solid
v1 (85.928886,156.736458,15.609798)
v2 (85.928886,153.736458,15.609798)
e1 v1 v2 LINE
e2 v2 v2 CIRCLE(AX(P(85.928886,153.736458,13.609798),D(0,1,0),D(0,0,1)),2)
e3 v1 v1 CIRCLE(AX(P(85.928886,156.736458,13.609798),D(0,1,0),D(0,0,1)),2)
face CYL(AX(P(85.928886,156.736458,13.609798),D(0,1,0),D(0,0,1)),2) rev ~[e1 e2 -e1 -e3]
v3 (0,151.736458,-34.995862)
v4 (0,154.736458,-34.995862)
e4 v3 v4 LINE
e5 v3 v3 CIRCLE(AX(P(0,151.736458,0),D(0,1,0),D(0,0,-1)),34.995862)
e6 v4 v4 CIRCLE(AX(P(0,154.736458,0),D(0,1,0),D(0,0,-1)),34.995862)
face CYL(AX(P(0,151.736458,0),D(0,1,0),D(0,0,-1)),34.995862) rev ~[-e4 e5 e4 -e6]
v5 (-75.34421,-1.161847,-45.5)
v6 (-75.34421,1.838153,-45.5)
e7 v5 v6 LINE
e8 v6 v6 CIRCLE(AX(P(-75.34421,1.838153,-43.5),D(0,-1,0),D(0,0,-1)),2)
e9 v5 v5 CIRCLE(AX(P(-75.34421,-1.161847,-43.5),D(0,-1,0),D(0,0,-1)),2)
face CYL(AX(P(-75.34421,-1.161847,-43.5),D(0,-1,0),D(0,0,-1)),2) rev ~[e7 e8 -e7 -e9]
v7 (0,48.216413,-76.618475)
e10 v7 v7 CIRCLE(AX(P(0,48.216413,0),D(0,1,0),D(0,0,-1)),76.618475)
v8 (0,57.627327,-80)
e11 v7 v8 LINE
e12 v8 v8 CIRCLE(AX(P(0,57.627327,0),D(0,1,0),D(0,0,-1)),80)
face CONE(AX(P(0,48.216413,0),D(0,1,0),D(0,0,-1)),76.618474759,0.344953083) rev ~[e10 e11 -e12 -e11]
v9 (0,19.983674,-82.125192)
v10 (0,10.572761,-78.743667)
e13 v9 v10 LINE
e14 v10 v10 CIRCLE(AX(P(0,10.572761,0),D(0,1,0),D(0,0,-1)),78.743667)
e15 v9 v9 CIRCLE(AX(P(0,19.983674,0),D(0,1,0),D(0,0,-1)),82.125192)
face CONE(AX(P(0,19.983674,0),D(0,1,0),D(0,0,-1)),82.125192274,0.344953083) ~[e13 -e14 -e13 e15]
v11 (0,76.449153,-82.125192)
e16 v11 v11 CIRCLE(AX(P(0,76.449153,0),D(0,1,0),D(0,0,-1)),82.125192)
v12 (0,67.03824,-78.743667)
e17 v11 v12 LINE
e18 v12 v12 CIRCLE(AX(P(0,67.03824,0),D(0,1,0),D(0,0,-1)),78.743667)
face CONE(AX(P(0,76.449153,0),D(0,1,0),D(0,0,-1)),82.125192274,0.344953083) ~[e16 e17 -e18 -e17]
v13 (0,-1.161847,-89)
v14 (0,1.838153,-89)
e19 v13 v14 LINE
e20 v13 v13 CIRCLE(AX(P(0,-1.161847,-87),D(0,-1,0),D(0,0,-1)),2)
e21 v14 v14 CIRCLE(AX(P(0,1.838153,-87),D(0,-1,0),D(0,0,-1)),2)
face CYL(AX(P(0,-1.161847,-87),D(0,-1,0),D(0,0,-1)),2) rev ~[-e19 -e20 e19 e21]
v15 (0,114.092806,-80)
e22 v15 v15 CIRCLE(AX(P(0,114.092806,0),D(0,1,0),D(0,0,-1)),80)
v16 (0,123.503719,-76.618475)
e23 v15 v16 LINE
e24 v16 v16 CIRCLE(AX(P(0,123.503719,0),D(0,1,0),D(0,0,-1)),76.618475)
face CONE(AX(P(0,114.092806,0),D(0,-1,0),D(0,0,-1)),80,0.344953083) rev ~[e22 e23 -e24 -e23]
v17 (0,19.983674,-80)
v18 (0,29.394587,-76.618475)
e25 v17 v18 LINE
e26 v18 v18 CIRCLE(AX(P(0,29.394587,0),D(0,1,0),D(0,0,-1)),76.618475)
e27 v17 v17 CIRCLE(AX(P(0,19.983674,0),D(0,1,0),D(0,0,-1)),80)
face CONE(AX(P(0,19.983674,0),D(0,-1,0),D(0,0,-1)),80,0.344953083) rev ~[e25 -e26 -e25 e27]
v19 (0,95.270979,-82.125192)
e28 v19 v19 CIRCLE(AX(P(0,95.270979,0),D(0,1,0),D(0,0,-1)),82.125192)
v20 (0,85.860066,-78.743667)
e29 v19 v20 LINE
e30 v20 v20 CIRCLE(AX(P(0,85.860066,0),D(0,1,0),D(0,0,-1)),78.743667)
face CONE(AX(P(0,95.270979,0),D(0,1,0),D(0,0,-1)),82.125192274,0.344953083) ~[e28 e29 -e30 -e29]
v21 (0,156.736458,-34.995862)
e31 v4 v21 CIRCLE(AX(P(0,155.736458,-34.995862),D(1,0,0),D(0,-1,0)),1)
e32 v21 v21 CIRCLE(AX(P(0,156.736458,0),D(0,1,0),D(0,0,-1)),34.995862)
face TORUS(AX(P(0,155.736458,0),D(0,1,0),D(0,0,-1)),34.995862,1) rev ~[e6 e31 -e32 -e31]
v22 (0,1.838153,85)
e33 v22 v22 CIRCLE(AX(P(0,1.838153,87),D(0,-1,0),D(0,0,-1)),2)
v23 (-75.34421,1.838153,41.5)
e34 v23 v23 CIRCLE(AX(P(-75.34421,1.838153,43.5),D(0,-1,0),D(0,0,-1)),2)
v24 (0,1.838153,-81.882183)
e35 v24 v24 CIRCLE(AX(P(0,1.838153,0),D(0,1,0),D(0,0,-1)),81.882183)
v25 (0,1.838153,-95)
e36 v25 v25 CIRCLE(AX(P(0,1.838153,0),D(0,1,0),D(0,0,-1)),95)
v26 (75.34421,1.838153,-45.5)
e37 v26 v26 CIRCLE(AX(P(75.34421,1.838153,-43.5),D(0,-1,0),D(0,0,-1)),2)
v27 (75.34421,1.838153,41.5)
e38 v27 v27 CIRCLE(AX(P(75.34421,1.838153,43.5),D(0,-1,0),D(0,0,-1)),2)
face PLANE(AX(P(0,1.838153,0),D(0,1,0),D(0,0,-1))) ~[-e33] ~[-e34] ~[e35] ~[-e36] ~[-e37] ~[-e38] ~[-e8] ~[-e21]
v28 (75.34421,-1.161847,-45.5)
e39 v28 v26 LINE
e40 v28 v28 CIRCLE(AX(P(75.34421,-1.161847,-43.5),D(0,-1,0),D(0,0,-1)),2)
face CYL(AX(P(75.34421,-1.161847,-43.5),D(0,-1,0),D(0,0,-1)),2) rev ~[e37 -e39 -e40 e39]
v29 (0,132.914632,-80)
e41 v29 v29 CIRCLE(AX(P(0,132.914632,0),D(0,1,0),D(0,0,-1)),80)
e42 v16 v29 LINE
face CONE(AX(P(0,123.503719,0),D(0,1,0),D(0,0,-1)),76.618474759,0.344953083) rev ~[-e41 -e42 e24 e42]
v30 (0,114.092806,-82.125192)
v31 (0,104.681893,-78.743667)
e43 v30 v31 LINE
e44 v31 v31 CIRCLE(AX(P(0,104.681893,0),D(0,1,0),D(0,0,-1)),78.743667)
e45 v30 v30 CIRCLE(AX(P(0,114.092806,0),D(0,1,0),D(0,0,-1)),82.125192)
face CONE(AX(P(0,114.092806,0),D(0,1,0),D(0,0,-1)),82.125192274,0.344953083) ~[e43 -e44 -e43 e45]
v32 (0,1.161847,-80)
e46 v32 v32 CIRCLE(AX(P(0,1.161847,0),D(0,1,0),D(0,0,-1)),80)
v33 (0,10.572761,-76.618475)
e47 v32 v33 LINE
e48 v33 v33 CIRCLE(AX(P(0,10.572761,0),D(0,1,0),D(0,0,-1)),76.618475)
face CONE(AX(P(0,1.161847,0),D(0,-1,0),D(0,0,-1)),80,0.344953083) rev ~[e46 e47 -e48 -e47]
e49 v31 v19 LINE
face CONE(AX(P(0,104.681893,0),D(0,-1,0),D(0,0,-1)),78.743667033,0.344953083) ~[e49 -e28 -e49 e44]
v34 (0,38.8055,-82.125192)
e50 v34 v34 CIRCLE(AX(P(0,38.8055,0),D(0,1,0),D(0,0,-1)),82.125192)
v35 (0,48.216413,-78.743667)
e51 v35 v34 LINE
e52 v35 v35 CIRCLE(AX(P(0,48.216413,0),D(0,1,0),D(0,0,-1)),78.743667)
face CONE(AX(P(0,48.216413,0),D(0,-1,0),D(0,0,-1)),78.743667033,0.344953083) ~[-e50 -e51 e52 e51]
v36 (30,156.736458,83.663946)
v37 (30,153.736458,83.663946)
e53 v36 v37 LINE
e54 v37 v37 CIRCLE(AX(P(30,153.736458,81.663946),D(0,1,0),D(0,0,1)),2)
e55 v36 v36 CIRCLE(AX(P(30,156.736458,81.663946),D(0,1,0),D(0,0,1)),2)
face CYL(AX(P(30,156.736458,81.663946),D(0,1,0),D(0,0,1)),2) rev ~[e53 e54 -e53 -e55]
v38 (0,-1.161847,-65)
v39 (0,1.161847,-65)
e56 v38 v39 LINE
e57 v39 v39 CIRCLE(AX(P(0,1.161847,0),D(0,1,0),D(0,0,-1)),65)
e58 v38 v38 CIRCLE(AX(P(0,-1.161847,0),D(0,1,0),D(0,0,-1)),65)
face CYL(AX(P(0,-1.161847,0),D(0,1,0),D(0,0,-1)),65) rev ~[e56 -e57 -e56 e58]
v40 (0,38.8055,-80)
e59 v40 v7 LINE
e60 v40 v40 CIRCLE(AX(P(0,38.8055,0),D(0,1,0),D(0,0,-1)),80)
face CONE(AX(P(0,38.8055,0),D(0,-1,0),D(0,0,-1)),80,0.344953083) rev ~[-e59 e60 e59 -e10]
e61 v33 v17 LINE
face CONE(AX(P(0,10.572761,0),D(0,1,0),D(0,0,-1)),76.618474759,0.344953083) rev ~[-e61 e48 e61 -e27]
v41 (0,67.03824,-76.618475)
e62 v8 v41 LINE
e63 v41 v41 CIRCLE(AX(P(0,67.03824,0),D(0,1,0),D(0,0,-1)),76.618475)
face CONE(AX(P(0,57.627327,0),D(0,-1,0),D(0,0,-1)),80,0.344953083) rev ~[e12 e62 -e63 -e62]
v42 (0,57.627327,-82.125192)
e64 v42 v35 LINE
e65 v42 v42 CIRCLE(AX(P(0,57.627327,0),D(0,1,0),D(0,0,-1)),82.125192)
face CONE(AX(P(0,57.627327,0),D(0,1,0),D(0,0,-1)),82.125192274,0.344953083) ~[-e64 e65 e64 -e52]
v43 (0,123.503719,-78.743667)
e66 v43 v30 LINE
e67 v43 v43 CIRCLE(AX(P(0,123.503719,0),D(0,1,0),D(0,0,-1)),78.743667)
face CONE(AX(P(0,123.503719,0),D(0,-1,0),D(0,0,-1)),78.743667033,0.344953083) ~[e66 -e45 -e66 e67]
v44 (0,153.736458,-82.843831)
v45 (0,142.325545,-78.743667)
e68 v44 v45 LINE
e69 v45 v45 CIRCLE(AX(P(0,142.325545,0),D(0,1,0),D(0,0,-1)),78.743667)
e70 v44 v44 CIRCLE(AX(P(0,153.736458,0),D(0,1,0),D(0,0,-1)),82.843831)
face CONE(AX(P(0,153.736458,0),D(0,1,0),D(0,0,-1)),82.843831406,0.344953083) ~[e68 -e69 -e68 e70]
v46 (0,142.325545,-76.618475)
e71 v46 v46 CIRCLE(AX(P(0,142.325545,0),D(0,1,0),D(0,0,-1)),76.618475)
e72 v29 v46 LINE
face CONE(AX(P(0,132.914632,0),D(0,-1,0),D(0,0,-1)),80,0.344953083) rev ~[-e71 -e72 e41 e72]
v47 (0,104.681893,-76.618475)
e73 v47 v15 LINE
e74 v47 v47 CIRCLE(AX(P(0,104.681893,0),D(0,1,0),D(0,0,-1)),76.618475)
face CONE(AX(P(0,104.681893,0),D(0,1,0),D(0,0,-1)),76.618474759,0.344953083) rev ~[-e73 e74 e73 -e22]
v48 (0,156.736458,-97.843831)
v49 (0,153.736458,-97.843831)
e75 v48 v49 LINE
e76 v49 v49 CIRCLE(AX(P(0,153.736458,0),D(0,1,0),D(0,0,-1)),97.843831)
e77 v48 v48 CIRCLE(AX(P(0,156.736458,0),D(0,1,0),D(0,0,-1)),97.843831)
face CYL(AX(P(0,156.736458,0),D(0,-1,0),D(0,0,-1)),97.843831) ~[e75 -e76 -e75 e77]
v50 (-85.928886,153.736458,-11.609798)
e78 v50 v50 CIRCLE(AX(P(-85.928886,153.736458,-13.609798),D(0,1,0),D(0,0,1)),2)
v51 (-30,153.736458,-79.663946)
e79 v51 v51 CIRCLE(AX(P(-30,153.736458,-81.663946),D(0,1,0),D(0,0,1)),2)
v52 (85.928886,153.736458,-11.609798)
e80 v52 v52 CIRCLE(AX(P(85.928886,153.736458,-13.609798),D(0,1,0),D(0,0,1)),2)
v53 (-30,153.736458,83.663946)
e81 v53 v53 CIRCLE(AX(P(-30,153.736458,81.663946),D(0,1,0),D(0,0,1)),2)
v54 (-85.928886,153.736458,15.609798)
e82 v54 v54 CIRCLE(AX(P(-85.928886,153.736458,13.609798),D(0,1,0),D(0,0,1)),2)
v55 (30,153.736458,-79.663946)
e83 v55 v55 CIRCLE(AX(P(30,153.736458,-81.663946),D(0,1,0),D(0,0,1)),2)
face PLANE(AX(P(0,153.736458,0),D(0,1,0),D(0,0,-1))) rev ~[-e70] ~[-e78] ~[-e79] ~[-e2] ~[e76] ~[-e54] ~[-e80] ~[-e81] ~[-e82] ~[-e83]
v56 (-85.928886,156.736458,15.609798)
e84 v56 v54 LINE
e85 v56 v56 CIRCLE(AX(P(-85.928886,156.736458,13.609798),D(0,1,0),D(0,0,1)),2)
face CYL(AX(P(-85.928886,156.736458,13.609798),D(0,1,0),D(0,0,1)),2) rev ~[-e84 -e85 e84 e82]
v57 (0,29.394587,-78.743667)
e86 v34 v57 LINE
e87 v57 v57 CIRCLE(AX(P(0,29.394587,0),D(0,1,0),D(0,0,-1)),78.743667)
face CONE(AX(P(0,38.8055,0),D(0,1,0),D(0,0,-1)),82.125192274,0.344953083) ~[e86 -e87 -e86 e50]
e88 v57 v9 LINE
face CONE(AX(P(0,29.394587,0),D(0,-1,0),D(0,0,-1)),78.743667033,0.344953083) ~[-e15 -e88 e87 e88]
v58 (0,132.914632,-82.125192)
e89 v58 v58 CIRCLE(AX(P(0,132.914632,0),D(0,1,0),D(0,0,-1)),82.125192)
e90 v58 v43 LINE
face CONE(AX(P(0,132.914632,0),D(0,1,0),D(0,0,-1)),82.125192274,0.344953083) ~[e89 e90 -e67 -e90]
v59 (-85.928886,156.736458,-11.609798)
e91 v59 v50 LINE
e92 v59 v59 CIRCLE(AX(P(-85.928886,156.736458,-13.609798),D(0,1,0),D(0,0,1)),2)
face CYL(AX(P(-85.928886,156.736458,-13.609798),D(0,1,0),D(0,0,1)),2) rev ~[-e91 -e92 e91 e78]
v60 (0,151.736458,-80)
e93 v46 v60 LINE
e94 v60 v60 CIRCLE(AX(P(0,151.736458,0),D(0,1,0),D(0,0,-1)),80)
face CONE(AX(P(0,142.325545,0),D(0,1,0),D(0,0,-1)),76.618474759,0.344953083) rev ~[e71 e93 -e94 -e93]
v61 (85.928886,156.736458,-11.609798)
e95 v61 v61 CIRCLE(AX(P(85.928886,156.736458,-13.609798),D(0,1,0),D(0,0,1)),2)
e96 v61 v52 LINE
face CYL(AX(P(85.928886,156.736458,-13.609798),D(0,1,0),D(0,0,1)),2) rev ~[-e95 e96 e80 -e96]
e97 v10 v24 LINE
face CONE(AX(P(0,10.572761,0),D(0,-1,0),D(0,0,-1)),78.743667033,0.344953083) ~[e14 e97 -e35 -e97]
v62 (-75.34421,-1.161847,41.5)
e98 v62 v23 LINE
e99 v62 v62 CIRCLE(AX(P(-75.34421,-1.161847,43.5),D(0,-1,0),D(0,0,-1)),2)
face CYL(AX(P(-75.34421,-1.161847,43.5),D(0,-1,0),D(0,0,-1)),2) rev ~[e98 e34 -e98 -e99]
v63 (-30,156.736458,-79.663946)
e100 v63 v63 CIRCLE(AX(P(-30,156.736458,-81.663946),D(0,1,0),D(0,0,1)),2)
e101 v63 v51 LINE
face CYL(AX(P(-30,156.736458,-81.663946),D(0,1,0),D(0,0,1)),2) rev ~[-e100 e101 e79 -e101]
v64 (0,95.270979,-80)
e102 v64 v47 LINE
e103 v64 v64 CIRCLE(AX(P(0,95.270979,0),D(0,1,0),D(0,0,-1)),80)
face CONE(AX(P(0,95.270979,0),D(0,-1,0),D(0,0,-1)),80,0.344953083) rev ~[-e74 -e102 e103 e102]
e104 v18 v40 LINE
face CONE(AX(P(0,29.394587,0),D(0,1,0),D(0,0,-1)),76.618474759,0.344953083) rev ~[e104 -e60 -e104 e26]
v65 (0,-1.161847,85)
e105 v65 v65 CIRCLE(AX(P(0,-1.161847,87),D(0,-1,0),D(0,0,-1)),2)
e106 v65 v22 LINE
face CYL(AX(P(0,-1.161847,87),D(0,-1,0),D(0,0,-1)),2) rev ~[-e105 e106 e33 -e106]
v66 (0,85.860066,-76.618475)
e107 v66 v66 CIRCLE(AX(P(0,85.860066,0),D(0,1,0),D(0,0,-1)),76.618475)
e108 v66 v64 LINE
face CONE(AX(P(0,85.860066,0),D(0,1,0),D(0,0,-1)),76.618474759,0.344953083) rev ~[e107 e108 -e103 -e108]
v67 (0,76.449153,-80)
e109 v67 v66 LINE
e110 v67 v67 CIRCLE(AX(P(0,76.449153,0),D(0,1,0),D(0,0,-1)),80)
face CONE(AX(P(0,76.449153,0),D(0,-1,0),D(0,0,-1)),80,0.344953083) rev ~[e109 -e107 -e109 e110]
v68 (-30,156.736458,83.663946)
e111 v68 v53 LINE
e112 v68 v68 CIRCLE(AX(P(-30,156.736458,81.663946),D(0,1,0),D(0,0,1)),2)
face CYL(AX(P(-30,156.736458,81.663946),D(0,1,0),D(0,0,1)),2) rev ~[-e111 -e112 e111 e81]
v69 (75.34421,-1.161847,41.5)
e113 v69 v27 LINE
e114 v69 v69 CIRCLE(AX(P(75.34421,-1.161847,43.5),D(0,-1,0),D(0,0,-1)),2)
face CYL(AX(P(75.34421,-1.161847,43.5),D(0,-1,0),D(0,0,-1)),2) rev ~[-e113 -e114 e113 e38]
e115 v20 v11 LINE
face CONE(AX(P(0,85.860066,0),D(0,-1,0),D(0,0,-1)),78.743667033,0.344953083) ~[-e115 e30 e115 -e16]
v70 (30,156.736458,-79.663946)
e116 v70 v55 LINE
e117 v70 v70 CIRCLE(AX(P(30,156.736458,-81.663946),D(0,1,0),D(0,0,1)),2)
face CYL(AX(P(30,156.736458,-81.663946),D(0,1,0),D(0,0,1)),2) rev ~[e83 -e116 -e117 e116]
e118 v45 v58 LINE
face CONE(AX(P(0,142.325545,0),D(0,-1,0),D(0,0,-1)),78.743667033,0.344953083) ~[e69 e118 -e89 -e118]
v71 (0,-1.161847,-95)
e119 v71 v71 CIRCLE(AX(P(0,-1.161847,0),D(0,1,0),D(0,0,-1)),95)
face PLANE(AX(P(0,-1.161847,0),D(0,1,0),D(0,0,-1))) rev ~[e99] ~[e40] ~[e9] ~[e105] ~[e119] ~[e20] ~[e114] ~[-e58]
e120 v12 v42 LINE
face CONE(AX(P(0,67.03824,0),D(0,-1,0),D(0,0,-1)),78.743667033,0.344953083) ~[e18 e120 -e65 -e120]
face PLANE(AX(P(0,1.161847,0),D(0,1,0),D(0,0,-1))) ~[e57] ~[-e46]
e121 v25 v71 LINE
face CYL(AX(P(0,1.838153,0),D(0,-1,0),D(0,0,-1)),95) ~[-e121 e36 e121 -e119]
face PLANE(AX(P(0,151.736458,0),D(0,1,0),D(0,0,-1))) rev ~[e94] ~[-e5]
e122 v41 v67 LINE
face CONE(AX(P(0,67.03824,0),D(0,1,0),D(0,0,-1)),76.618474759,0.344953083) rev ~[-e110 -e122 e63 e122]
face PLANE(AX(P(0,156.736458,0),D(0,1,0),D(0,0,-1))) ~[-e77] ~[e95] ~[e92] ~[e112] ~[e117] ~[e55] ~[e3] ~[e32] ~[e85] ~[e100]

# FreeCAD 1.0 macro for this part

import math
import FreeCAD as App
import Part
import Sketcher

V = App.Vector
Q = App.Units.Quantity

doc = App.newDocument("Part")
params = doc.addObject("Spreadsheet::Sheet", "Params")
for row, (alias, value) in enumerate([
    ("sketch1_radius", "1 mm"),
    ("sketch1_width", "15 mm"),
    ("sketch1_width2", "30 mm"),
    ("sketch1_height", "3 mm"),
    ("sketch1_length", "10 mm"),
    ("revolution_angle", "360 deg"),
    ("sketch2_diameter", "4 mm"),
    ("sketch3_diameter", "4 mm"),
    ("sketch4_diameter", "4 mm"),
    ("sketch5_diameter", "4 mm"),
    ("sketch6_diameter", "4 mm"),
    ("sketch7_diameter", "4 mm"),
    ("sketch8_diameter", "4 mm"),
    ("sketch9_diameter", "4 mm"),
    ("sketch10_diameter", "4 mm"),
    ("sketch11_diameter", "4 mm"),
    ("sketch12_diameter", "4 mm"),
    ("sketch13_diameter", "4 mm"),
    ("sketch14_diameter", "4 mm"),
    ("sketch15_diameter", "4 mm"),
], start=1):
    params.set(f"A{row}", alias)
    params.set(f"B{row}", "=" + value)
    params.setAlias(f"B{row}", alias)

body = doc.addObject("PartDesign::Body", "Body")

sketch1 = body.newObject("Sketcher::SketchObject", "Sketch")
sketch1.AttachmentSupport = (doc.getObject("XY_Plane"), [""])
sketch1.MapMode = "FlatFace"
sketch1.addGeometry([
    Part.LineSegment(V(76.618475, 10.572761, 0), V(80, 1.161847, 0)),
    Part.LineSegment(V(80, 1.161847, 0), V(65, 1.161847, 0)),
    Part.LineSegment(V(65, 1.161847, 0), V(65, -1.161847, 0)),
    Part.LineSegment(V(65, -1.161847, 0), V(95, -1.161847, 0)),
    Part.LineSegment(V(95, -1.161847, 0), V(95, 1.838153, 0)),
    Part.LineSegment(V(95, 1.838153, 0), V(81.882183, 1.838153, 0)),
    Part.LineSegment(V(81.882183, 1.838153, 0), V(78.743667, 10.572761, 0)),
    Part.LineSegment(V(78.743667, 10.572761, 0), V(82.125192, 19.983674, 0)),
    Part.LineSegment(V(82.125192, 19.983674, 0), V(78.743667, 29.394587, 0)),
    Part.LineSegment(V(78.743667, 29.394587, 0), V(82.125192, 38.8055, 0)),
    Part.LineSegment(V(82.125192, 38.8055, 0), V(78.743667, 48.216413, 0)),
    Part.LineSegment(V(78.743667, 48.216413, 0), V(82.125192, 57.627327, 0)),
    Part.LineSegment(V(82.125192, 57.627327, 0), V(78.743667, 67.03824, 0)),
    Part.LineSegment(V(78.743667, 67.03824, 0), V(82.125192, 76.449153, 0)),
    Part.LineSegment(V(82.125192, 76.449153, 0), V(78.743667, 85.860066, 0)),
    Part.LineSegment(V(78.743667, 85.860066, 0), V(82.125192, 95.270979, 0)),
    Part.LineSegment(V(82.125192, 95.270979, 0), V(78.743667, 104.681893, 0)),
    Part.LineSegment(V(78.743667, 104.681893, 0), V(82.125192, 114.092806, 0)),
    Part.LineSegment(V(82.125192, 114.092806, 0), V(78.743667, 123.503719, 0)),
    Part.LineSegment(V(78.743667, 123.503719, 0), V(82.125192, 132.914632, 0)),
    Part.LineSegment(V(82.125192, 132.914632, 0), V(78.743667, 142.325545, 0)),
    Part.LineSegment(V(78.743667, 142.325545, 0), V(82.843831, 153.736458, 0)),
    Part.LineSegment(V(82.843831, 153.736458, 0), V(97.843831, 153.736458, 0)),
    Part.LineSegment(V(97.843831, 153.736458, 0), V(97.843831, 156.736458, 0)),
    Part.LineSegment(V(97.843831, 156.736458, 0), V(34.995862, 156.736458, 0)),
    Part.ArcOfCircle(Part.Circle(V(34.995862, 155.736458, 0), V(0, 0, 1), 1), math.radians(-90), math.radians(90)),
    Part.LineSegment(V(34.995862, 154.736458, 0), V(34.995862, 151.736458, 0)),
    Part.LineSegment(V(34.995862, 151.736458, 0), V(80, 151.736458, 0)),
    Part.LineSegment(V(80, 151.736458, 0), V(76.618475, 142.325545, 0)),
    Part.LineSegment(V(76.618475, 142.325545, 0), V(80, 132.914632, 0)),
    Part.LineSegment(V(80, 132.914632, 0), V(76.618475, 123.503719, 0)),
    Part.LineSegment(V(76.618475, 123.503719, 0), V(80, 114.092806, 0)),
    Part.LineSegment(V(80, 114.092806, 0), V(76.618475, 104.681893, 0)),
    Part.LineSegment(V(76.618475, 104.681893, 0), V(80, 95.270979, 0)),
    Part.LineSegment(V(80, 95.270979, 0), V(76.618475, 85.860066, 0)),
    Part.LineSegment(V(76.618475, 85.860066, 0), V(80, 76.449153, 0)),
    Part.LineSegment(V(80, 76.449153, 0), V(76.618475, 67.03824, 0)),
    Part.LineSegment(V(76.618475, 67.03824, 0), V(80, 57.627327, 0)),
    Part.LineSegment(V(80, 57.627327, 0), V(76.618475, 48.216413, 0)),
    Part.LineSegment(V(76.618475, 48.216413, 0), V(80, 38.8055, 0)),
    Part.LineSegment(V(80, 38.8055, 0), V(76.618475, 29.394587, 0)),
    Part.LineSegment(V(76.618475, 29.394587, 0), V(80, 19.983674, 0)),
    Part.LineSegment(V(80, 19.983674, 0), V(76.618475, 10.572761, 0)),
], False)
sketch1.addConstraint([
    Sketcher.Constraint("Coincident", 0, 2, 1, 1),
    Sketcher.Constraint("Coincident", 1, 2, 2, 1),
    Sketcher.Constraint("Coincident", 2, 2, 3, 1),
    Sketcher.Constraint("Coincident", 3, 2, 4, 1),
    Sketcher.Constraint("Coincident", 4, 2, 5, 1),
    Sketcher.Constraint("Coincident", 5, 2, 6, 1),
    Sketcher.Constraint("Coincident", 6, 2, 7, 1),
    Sketcher.Constraint("Coincident", 7, 2, 8, 1),
    Sketcher.Constraint("Coincident", 8, 2, 9, 1),
    Sketcher.Constraint("Coincident", 9, 2, 10, 1),
    Sketcher.Constraint("Coincident", 10, 2, 11, 1),
    Sketcher.Constraint("Coincident", 11, 2, 12, 1),
    Sketcher.Constraint("Coincident", 12, 2, 13, 1),
    Sketcher.Constraint("Coincident", 13, 2, 14, 1),
    Sketcher.Constraint("Coincident", 14, 2, 15, 1),
    Sketcher.Constraint("Coincident", 15, 2, 16, 1),
    Sketcher.Constraint("Coincident", 16, 2, 17, 1),
    Sketcher.Constraint("Coincident", 17, 2, 18, 1),
    Sketcher.Constraint("Coincident", 18, 2, 19, 1),
    Sketcher.Constraint("Coincident", 19, 2, 20, 1),
    Sketcher.Constraint("Coincident", 20, 2, 21, 1),
    Sketcher.Constraint("Coincident", 21, 2, 22, 1),
    Sketcher.Constraint("Coincident", 22, 2, 23, 1),
    Sketcher.Constraint("Coincident", 23, 2, 24, 1),
    Sketcher.Constraint("Tangent", 24, 2, 25, 2),
    Sketcher.Constraint("Coincident", 25, 1, 26, 1),
    Sketcher.Constraint("Coincident", 26, 2, 27, 1),
    Sketcher.Constraint("Coincident", 27, 2, 28, 1),
    Sketcher.Constraint("Coincident", 28, 2, 29, 1),
    Sketcher.Constraint("Coincident", 29, 2, 30, 1),
    Sketcher.Constraint("Coincident", 30, 2, 31, 1),
    Sketcher.Constraint("Coincident", 31, 2, 32, 1),
    Sketcher.Constraint("Coincident", 32, 2, 33, 1),
    Sketcher.Constraint("Coincident", 33, 2, 34, 1),
    Sketcher.Constraint("Coincident", 34, 2, 35, 1),
    Sketcher.Constraint("Coincident", 35, 2, 36, 1),
    Sketcher.Constraint("Coincident", 36, 2, 37, 1),
    Sketcher.Constraint("Coincident", 37, 2, 38, 1),
    Sketcher.Constraint("Coincident", 38, 2, 39, 1),
    Sketcher.Constraint("Coincident", 39, 2, 40, 1),
    Sketcher.Constraint("Coincident", 40, 2, 41, 1),
    Sketcher.Constraint("Coincident", 41, 2, 42, 1),
    Sketcher.Constraint("Coincident", 42, 2, 0, 1),
    Sketcher.Constraint("Horizontal", 1),
    Sketcher.Constraint("Vertical", 2),
    Sketcher.Constraint("Horizontal", 3),
    Sketcher.Constraint("Vertical", 4),
    Sketcher.Constraint("Horizontal", 5),
    Sketcher.Constraint("Horizontal", 22),
    Sketcher.Constraint("Vertical", 23),
    Sketcher.Constraint("Horizontal", 24),
    Sketcher.Constraint("Vertical", 26),
    Sketcher.Constraint("Horizontal", 27),
    Sketcher.Constraint("Parallel", 0, 6),
    Sketcher.Constraint("Parallel", 6, 8),
    Sketcher.Constraint("Parallel", 7, 9),
    Sketcher.Constraint("Parallel", 8, 10),
    Sketcher.Constraint("Parallel", 9, 11),
    Sketcher.Constraint("Parallel", 10, 12),
    Sketcher.Constraint("Parallel", 11, 13),
    Sketcher.Constraint("Parallel", 12, 14),
    Sketcher.Constraint("Parallel", 13, 15),
    Sketcher.Constraint("Parallel", 14, 16),
    Sketcher.Constraint("Parallel", 15, 17),
    Sketcher.Constraint("Parallel", 16, 18),
    Sketcher.Constraint("Parallel", 17, 19),
    Sketcher.Constraint("Parallel", 18, 20),
    Sketcher.Constraint("Parallel", 19, 21),
    Sketcher.Constraint("Parallel", 21, 28),
    Sketcher.Constraint("Parallel", 20, 29),
    Sketcher.Constraint("Parallel", 28, 30),
    Sketcher.Constraint("Parallel", 29, 31),
    Sketcher.Constraint("Parallel", 30, 32),
    Sketcher.Constraint("Parallel", 31, 33),
    Sketcher.Constraint("Parallel", 32, 34),
    Sketcher.Constraint("Parallel", 33, 35),
    Sketcher.Constraint("Parallel", 34, 36),
    Sketcher.Constraint("Parallel", 35, 37),
    Sketcher.Constraint("Parallel", 36, 38),
    Sketcher.Constraint("Parallel", 37, 39),
    Sketcher.Constraint("Parallel", 38, 40),
    Sketcher.Constraint("Parallel", 39, 41),
    Sketcher.Constraint("Parallel", 40, 42),
    Sketcher.Constraint("Horizontal", 20, 2, 28, 2),
    Sketcher.Constraint("Horizontal", 19, 2, 29, 2),
    Sketcher.Constraint("Horizontal", 18, 2, 30, 2),
    Sketcher.Constraint("Horizontal", 17, 2, 31, 2),
    Sketcher.Constraint("Horizontal", 16, 2, 32, 2),
    Sketcher.Constraint("Horizontal", 15, 2, 33, 2),
    Sketcher.Constraint("Horizontal", 14, 2, 34, 2),
    Sketcher.Constraint("Horizontal", 13, 2, 35, 2),
    Sketcher.Constraint("Horizontal", 12, 2, 36, 2),
    Sketcher.Constraint("Horizontal", 11, 2, 37, 2),
    Sketcher.Constraint("Horizontal", 10, 2, 38, 2),
    Sketcher.Constraint("Horizontal", 9, 2, 39, 2),
    Sketcher.Constraint("Horizontal", 8, 2, 40, 2),
    Sketcher.Constraint("Horizontal", 7, 2, 41, 2),
    Sketcher.Constraint("Horizontal", 6, 2, 42, 2),
    Sketcher.Constraint("Vertical", 6, 2, 8, 2),
    Sketcher.Constraint("Vertical", 7, 2, 9, 2),
    Sketcher.Constraint("Vertical", 8, 2, 10, 2),
    Sketcher.Constraint("Vertical", 9, 2, 11, 2),
    Sketcher.Constraint("Vertical", 10, 2, 12, 2),
    Sketcher.Constraint("Vertical", 11, 2, 13, 2),
    Sketcher.Constraint("Vertical", 12, 2, 14, 2),
    Sketcher.Constraint("Vertical", 13, 2, 15, 2),
    Sketcher.Constraint("Vertical", 14, 2, 16, 2),
    Sketcher.Constraint("Vertical", 15, 2, 17, 2),
    Sketcher.Constraint("Vertical", 16, 2, 18, 2),
    Sketcher.Constraint("Vertical", 17, 2, 19, 2),
    Sketcher.Constraint("Vertical", 18, 2, 20, 2),
    Sketcher.Constraint("Vertical", 24, 2, 25, 1),
    Sketcher.Constraint("Vertical", 0, 2, 27, 2),
    Sketcher.Constraint("Vertical", 27, 2, 29, 2),
    Sketcher.Constraint("Equal", 1, 22),
    Sketcher.Constraint("Equal", 4, 23),
    Sketcher.Constraint("Equal", 23, 26),
    Sketcher.Constraint("Equal", 0, 7),
    Sketcher.Constraint("Radius", 25, Q("1 mm")),
    Sketcher.Constraint("DistanceX", 1, 2, 1, 1, Q("15 mm")),
    Sketcher.Constraint("DistanceX", 3, 1, 3, 2, Q("30 mm")),
    Sketcher.Constraint("DistanceY", 4, 1, 4, 2, Q("3 mm")),
    Sketcher.Constraint("Distance", 0, Q("10 mm")),
    Sketcher.Constraint("DistanceX", -1, 1, 0, 2, Q("80 mm")),
    Sketcher.Constraint("DistanceX", 24, 2, 24, 1, Q("62.847969 mm")),
    Sketcher.Constraint("DistanceY", -1, 1, 9, 2, Q("38.8055 mm")),
    Sketcher.Constraint("Distance", 6, Q("9.281361 mm")),
    Sketcher.Constraint("DistanceX", 5, 2, 5, 1, Q("13.117817 mm")),
    Sketcher.Constraint("DistanceX", 27, 1, 27, 2, Q("45.004138 mm")),
])
sketch1.setExpression("Constraints[118]", "Params.sketch1_radius")
sketch1.setExpression("Constraints[119]", "Params.sketch1_width")
sketch1.setExpression("Constraints[120]", "Params.sketch1_width2")
sketch1.setExpression("Constraints[121]", "Params.sketch1_height")
sketch1.setExpression("Constraints[122]", "Params.sketch1_length")
revolution = body.newObject("PartDesign::Revolution", "Revolution")
revolution.Profile = sketch1
revolution.ReferenceAxis = (sketch1, ["V_Axis"])
revolution.setExpression("Angle", "Params.revolution_angle")

sketch2 = body.newObject("Sketcher::SketchObject", "Sketch001")
sketch2.AttachmentSupport = (doc.getObject("XZ_Plane"), [""])
sketch2.MapMode = "FlatFace"
sketch2.AttachmentOffset = App.Placement(V(0, 0, -156.736458), App.Rotation())
sketch2.addGeometry(Part.Circle(V(-85.928886, -13.609798, 0), V(0, 0, 1), 2), False)
sketch2.addConstraint([
    Sketcher.Constraint("Diameter", 0, Q("4 mm")),
    Sketcher.Constraint("DistanceY", 0, 3, -1, 1, Q("13.609798 mm")),
    Sketcher.Constraint("DistanceX", 0, 3, -1, 1, Q("85.928886 mm")),
])
sketch2.setExpression("Constraints[0]", "Params.sketch2_diameter")
pocket1 = body.newObject("PartDesign::Pocket", "Pocket")
pocket1.Profile = sketch2
pocket1.Type = "UpToFirst"
pocket1.Reversed = True

sketch3 = body.newObject("Sketcher::SketchObject", "Sketch002")
sketch3.AttachmentSupport = (doc.getObject("XZ_Plane"), [""])
sketch3.MapMode = "FlatFace"
sketch3.AttachmentOffset = App.Placement(V(0, 0, -156.736458), App.Rotation())
sketch3.addGeometry(Part.Circle(V(-85.928886, 13.609798, 0), V(0, 0, 1), 2), False)
sketch3.addConstraint([
    Sketcher.Constraint("Diameter", 0, Q("4 mm")),
    Sketcher.Constraint("DistanceY", -1, 1, 0, 3, Q("13.609798 mm")),
    Sketcher.Constraint("DistanceX", 0, 3, -1, 1, Q("85.928886 mm")),
])
sketch3.setExpression("Constraints[0]", "Params.sketch3_diameter")
pocket2 = body.newObject("PartDesign::Pocket", "Pocket001")
pocket2.Profile = sketch3
pocket2.Type = "UpToFirst"
pocket2.Reversed = True

sketch4 = body.newObject("Sketcher::SketchObject", "Sketch003")
sketch4.AttachmentSupport = (doc.getObject("XZ_Plane"), [""])
sketch4.MapMode = "FlatFace"
sketch4.AttachmentOffset = App.Placement(V(0, 0, -156.736458), App.Rotation())
sketch4.addGeometry(Part.Circle(V(85.928886, -13.609798, 0), V(0, 0, 1), 2), False)
sketch4.addConstraint([
    Sketcher.Constraint("Diameter", 0, Q("4 mm")),
    Sketcher.Constraint("DistanceY", 0, 3, -1, 1, Q("13.609798 mm")),
    Sketcher.Constraint("DistanceX", -1, 1, 0, 3, Q("85.928886 mm")),
])
sketch4.setExpression("Constraints[0]", "Params.sketch4_diameter")
pocket3 = body.newObject("PartDesign::Pocket", "Pocket002")
pocket3.Profile = sketch4
pocket3.Type = "UpToFirst"
pocket3.Reversed = True

sketch5 = body.newObject("Sketcher::SketchObject", "Sketch004")
sketch5.AttachmentSupport = (doc.getObject("XZ_Plane"), [""])
sketch5.MapMode = "FlatFace"
sketch5.AttachmentOffset = App.Placement(V(0, 0, -156.736458), App.Rotation())
sketch5.addGeometry(Part.Circle(V(85.928886, 13.609798, 0), V(0, 0, 1), 2), False)
sketch5.addConstraint([
    Sketcher.Constraint("Diameter", 0, Q("4 mm")),
    Sketcher.Constraint("DistanceY", -1, 1, 0, 3, Q("13.609798 mm")),
    Sketcher.Constraint("DistanceX", -1, 1, 0, 3, Q("85.928886 mm")),
])
sketch5.setExpression("Constraints[0]", "Params.sketch5_diameter")
pocket4 = body.newObject("PartDesign::Pocket", "Pocket003")
pocket4.Profile = sketch5
pocket4.Type = "UpToFirst"
pocket4.Reversed = True

sketch6 = body.newObject("Sketcher::SketchObject", "Sketch005")
sketch6.AttachmentSupport = (doc.getObject("XZ_Plane"), [""])
sketch6.MapMode = "FlatFace"
sketch6.AttachmentOffset = App.Placement(V(0, 0, -156.736458), App.Rotation())
sketch6.addGeometry(Part.Circle(V(-30, -81.663946, 0), V(0, 0, 1), 2), False)
sketch6.addConstraint([
    Sketcher.Constraint("Diameter", 0, Q("4 mm")),
    Sketcher.Constraint("DistanceX", 0, 3, -1, 1, Q("30 mm")),
    Sketcher.Constraint("DistanceY", 0, 3, -1, 1, Q("81.663946 mm")),
])
sketch6.setExpression("Constraints[0]", "Params.sketch6_diameter")
pocket5 = body.newObject("PartDesign::Pocket", "Pocket004")
pocket5.Profile = sketch6
pocket5.Type = "UpToFirst"
pocket5.Reversed = True

sketch7 = body.newObject("Sketcher::SketchObject", "Sketch006")
sketch7.AttachmentSupport = (doc.getObject("XZ_Plane"), [""])
sketch7.MapMode = "FlatFace"
sketch7.AttachmentOffset = App.Placement(V(0, 0, -156.736458), App.Rotation())
sketch7.addGeometry(Part.Circle(V(30, -81.663946, 0), V(0, 0, 1), 2), False)
sketch7.addConstraint([
    Sketcher.Constraint("Diameter", 0, Q("4 mm")),
    Sketcher.Constraint("DistanceX", -1, 1, 0, 3, Q("30 mm")),
    Sketcher.Constraint("DistanceY", 0, 3, -1, 1, Q("81.663946 mm")),
])
sketch7.setExpression("Constraints[0]", "Params.sketch7_diameter")
pocket6 = body.newObject("PartDesign::Pocket", "Pocket005")
pocket6.Profile = sketch7
pocket6.Type = "UpToFirst"
pocket6.Reversed = True

sketch8 = body.newObject("Sketcher::SketchObject", "Sketch007")
sketch8.AttachmentSupport = (doc.getObject("XZ_Plane"), [""])
sketch8.MapMode = "FlatFace"
sketch8.AttachmentOffset = App.Placement(V(0, 0, -156.736458), App.Rotation())
sketch8.addGeometry(Part.Circle(V(30, 81.663946, 0), V(0, 0, 1), 2), False)
sketch8.addConstraint([
    Sketcher.Constraint("Diameter", 0, Q("4 mm")),
    Sketcher.Constraint("DistanceX", -1, 1, 0, 3, Q("30 mm")),
    Sketcher.Constraint("DistanceY", -1, 1, 0, 3, Q("81.663946 mm")),
])
sketch8.setExpression("Constraints[0]", "Params.sketch8_diameter")
pocket7 = body.newObject("PartDesign::Pocket", "Pocket006")
pocket7.Profile = sketch8
pocket7.Type = "UpToFirst"
pocket7.Reversed = True

sketch9 = body.newObject("Sketcher::SketchObject", "Sketch008")
sketch9.AttachmentSupport = (doc.getObject("XZ_Plane"), [""])
sketch9.MapMode = "FlatFace"
sketch9.AttachmentOffset = App.Placement(V(0, 0, -156.736458), App.Rotation())
sketch9.addGeometry(Part.Circle(V(-30, 81.663946, 0), V(0, 0, 1), 2), False)
sketch9.addConstraint([
    Sketcher.Constraint("Diameter", 0, Q("4 mm")),
    Sketcher.Constraint("DistanceX", 0, 3, -1, 1, Q("30 mm")),
    Sketcher.Constraint("DistanceY", -1, 1, 0, 3, Q("81.663946 mm")),
])
sketch9.setExpression("Constraints[0]", "Params.sketch9_diameter")
pocket8 = body.newObject("PartDesign::Pocket", "Pocket007")
pocket8.Profile = sketch9
pocket8.Type = "UpToFirst"
pocket8.Reversed = True

sketch10 = body.newObject("Sketcher::SketchObject", "Sketch009")
sketch10.AttachmentSupport = (doc.getObject("XZ_Plane"), [""])
sketch10.MapMode = "FlatFace"
sketch10.AttachmentOffset = App.Placement(V(0, 0, 1.161847), App.Rotation())
sketch10.addGeometry(Part.Circle(V(0, 87, 0), V(0, 0, 1), 2), False)
sketch10.addConstraint([
    Sketcher.Constraint("PointOnObject", 0, 3, -2),
    Sketcher.Constraint("Diameter", 0, Q("4 mm")),
    Sketcher.Constraint("DistanceY", -1, 1, 0, 3, Q("87 mm")),
])
sketch10.setExpression("Constraints[1]", "Params.sketch10_diameter")
pocket9 = body.newObject("PartDesign::Pocket", "Pocket008")
pocket9.Profile = sketch10
pocket9.Type = "UpToFirst"

sketch11 = body.newObject("Sketcher::SketchObject", "Sketch010")
sketch11.AttachmentSupport = (doc.getObject("XZ_Plane"), [""])
sketch11.MapMode = "FlatFace"
sketch11.AttachmentOffset = App.Placement(V(0, 0, 1.161847), App.Rotation())
sketch11.addGeometry(Part.Circle(V(75.34421, 43.5, 0), V(0, 0, 1), 2), False)
sketch11.addConstraint([
    Sketcher.Constraint("Diameter", 0, Q("4 mm")),
    Sketcher.Constraint("DistanceY", -1, 1, 0, 3, Q("43.5 mm")),
    Sketcher.Constraint("DistanceX", -1, 1, 0, 3, Q("75.34421 mm")),
])
sketch11.setExpression("Constraints[0]", "Params.sketch11_diameter")
pocket10 = body.newObject("PartDesign::Pocket", "Pocket009")
pocket10.Profile = sketch11
pocket10.Type = "UpToFirst"

sketch12 = body.newObject("Sketcher::SketchObject", "Sketch011")
sketch12.AttachmentSupport = (doc.getObject("XZ_Plane"), [""])
sketch12.MapMode = "FlatFace"
sketch12.AttachmentOffset = App.Placement(V(0, 0, 1.161847), App.Rotation())
sketch12.addGeometry(Part.Circle(V(75.34421, -43.5, 0), V(0, 0, 1), 2), False)
sketch12.addConstraint([
    Sketcher.Constraint("Diameter", 0, Q("4 mm")),
    Sketcher.Constraint("DistanceY", 0, 3, -1, 1, Q("43.5 mm")),
    Sketcher.Constraint("DistanceX", -1, 1, 0, 3, Q("75.34421 mm")),
])
sketch12.setExpression("Constraints[0]", "Params.sketch12_diameter")
pocket11 = body.newObject("PartDesign::Pocket", "Pocket010")
pocket11.Profile = sketch12
pocket11.Type = "UpToFirst"

sketch13 = body.newObject("Sketcher::SketchObject", "Sketch012")
sketch13.AttachmentSupport = (doc.getObject("XZ_Plane"), [""])
sketch13.MapMode = "FlatFace"
sketch13.AttachmentOffset = App.Placement(V(0, 0, 1.161847), App.Rotation())
sketch13.addGeometry(Part.Circle(V(0, -87, 0), V(0, 0, 1), 2), False)
sketch13.addConstraint([
    Sketcher.Constraint("PointOnObject", 0, 3, -2),
    Sketcher.Constraint("Diameter", 0, Q("4 mm")),
    Sketcher.Constraint("DistanceY", 0, 3, -1, 1, Q("87 mm")),
])
sketch13.setExpression("Constraints[1]", "Params.sketch13_diameter")
pocket12 = body.newObject("PartDesign::Pocket", "Pocket011")
pocket12.Profile = sketch13
pocket12.Type = "UpToFirst"

sketch14 = body.newObject("Sketcher::SketchObject", "Sketch013")
sketch14.AttachmentSupport = (doc.getObject("XZ_Plane"), [""])
sketch14.MapMode = "FlatFace"
sketch14.AttachmentOffset = App.Placement(V(0, 0, 1.161847), App.Rotation())
sketch14.addGeometry(Part.Circle(V(-75.34421, -43.5, 0), V(0, 0, 1), 2), False)
sketch14.addConstraint([
    Sketcher.Constraint("Diameter", 0, Q("4 mm")),
    Sketcher.Constraint("DistanceY", 0, 3, -1, 1, Q("43.5 mm")),
    Sketcher.Constraint("DistanceX", 0, 3, -1, 1, Q("75.34421 mm")),
])
sketch14.setExpression("Constraints[0]", "Params.sketch14_diameter")
pocket13 = body.newObject("PartDesign::Pocket", "Pocket012")
pocket13.Profile = sketch14
pocket13.Type = "UpToFirst"

sketch15 = body.newObject("Sketcher::SketchObject", "Sketch014")
sketch15.AttachmentSupport = (doc.getObject("XZ_Plane"), [""])
sketch15.MapMode = "FlatFace"
sketch15.AttachmentOffset = App.Placement(V(0, 0, 1.161847), App.Rotation())
sketch15.addGeometry(Part.Circle(V(-75.34421, 43.5, 0), V(0, 0, 1), 2), False)
sketch15.addConstraint([
    Sketcher.Constraint("Diameter", 0, Q("4 mm")),
    Sketcher.Constraint("DistanceY", -1, 1, 0, 3, Q("43.5 mm")),
    Sketcher.Constraint("DistanceX", 0, 3, -1, 1, Q("75.34421 mm")),
])
sketch15.setExpression("Constraints[0]", "Params.sketch15_diameter")
pocket14 = body.newObject("PartDesign::Pocket", "Pocket013")
pocket14.Profile = sketch15
pocket14.Type = "UpToFirst"

doc.recompute()
